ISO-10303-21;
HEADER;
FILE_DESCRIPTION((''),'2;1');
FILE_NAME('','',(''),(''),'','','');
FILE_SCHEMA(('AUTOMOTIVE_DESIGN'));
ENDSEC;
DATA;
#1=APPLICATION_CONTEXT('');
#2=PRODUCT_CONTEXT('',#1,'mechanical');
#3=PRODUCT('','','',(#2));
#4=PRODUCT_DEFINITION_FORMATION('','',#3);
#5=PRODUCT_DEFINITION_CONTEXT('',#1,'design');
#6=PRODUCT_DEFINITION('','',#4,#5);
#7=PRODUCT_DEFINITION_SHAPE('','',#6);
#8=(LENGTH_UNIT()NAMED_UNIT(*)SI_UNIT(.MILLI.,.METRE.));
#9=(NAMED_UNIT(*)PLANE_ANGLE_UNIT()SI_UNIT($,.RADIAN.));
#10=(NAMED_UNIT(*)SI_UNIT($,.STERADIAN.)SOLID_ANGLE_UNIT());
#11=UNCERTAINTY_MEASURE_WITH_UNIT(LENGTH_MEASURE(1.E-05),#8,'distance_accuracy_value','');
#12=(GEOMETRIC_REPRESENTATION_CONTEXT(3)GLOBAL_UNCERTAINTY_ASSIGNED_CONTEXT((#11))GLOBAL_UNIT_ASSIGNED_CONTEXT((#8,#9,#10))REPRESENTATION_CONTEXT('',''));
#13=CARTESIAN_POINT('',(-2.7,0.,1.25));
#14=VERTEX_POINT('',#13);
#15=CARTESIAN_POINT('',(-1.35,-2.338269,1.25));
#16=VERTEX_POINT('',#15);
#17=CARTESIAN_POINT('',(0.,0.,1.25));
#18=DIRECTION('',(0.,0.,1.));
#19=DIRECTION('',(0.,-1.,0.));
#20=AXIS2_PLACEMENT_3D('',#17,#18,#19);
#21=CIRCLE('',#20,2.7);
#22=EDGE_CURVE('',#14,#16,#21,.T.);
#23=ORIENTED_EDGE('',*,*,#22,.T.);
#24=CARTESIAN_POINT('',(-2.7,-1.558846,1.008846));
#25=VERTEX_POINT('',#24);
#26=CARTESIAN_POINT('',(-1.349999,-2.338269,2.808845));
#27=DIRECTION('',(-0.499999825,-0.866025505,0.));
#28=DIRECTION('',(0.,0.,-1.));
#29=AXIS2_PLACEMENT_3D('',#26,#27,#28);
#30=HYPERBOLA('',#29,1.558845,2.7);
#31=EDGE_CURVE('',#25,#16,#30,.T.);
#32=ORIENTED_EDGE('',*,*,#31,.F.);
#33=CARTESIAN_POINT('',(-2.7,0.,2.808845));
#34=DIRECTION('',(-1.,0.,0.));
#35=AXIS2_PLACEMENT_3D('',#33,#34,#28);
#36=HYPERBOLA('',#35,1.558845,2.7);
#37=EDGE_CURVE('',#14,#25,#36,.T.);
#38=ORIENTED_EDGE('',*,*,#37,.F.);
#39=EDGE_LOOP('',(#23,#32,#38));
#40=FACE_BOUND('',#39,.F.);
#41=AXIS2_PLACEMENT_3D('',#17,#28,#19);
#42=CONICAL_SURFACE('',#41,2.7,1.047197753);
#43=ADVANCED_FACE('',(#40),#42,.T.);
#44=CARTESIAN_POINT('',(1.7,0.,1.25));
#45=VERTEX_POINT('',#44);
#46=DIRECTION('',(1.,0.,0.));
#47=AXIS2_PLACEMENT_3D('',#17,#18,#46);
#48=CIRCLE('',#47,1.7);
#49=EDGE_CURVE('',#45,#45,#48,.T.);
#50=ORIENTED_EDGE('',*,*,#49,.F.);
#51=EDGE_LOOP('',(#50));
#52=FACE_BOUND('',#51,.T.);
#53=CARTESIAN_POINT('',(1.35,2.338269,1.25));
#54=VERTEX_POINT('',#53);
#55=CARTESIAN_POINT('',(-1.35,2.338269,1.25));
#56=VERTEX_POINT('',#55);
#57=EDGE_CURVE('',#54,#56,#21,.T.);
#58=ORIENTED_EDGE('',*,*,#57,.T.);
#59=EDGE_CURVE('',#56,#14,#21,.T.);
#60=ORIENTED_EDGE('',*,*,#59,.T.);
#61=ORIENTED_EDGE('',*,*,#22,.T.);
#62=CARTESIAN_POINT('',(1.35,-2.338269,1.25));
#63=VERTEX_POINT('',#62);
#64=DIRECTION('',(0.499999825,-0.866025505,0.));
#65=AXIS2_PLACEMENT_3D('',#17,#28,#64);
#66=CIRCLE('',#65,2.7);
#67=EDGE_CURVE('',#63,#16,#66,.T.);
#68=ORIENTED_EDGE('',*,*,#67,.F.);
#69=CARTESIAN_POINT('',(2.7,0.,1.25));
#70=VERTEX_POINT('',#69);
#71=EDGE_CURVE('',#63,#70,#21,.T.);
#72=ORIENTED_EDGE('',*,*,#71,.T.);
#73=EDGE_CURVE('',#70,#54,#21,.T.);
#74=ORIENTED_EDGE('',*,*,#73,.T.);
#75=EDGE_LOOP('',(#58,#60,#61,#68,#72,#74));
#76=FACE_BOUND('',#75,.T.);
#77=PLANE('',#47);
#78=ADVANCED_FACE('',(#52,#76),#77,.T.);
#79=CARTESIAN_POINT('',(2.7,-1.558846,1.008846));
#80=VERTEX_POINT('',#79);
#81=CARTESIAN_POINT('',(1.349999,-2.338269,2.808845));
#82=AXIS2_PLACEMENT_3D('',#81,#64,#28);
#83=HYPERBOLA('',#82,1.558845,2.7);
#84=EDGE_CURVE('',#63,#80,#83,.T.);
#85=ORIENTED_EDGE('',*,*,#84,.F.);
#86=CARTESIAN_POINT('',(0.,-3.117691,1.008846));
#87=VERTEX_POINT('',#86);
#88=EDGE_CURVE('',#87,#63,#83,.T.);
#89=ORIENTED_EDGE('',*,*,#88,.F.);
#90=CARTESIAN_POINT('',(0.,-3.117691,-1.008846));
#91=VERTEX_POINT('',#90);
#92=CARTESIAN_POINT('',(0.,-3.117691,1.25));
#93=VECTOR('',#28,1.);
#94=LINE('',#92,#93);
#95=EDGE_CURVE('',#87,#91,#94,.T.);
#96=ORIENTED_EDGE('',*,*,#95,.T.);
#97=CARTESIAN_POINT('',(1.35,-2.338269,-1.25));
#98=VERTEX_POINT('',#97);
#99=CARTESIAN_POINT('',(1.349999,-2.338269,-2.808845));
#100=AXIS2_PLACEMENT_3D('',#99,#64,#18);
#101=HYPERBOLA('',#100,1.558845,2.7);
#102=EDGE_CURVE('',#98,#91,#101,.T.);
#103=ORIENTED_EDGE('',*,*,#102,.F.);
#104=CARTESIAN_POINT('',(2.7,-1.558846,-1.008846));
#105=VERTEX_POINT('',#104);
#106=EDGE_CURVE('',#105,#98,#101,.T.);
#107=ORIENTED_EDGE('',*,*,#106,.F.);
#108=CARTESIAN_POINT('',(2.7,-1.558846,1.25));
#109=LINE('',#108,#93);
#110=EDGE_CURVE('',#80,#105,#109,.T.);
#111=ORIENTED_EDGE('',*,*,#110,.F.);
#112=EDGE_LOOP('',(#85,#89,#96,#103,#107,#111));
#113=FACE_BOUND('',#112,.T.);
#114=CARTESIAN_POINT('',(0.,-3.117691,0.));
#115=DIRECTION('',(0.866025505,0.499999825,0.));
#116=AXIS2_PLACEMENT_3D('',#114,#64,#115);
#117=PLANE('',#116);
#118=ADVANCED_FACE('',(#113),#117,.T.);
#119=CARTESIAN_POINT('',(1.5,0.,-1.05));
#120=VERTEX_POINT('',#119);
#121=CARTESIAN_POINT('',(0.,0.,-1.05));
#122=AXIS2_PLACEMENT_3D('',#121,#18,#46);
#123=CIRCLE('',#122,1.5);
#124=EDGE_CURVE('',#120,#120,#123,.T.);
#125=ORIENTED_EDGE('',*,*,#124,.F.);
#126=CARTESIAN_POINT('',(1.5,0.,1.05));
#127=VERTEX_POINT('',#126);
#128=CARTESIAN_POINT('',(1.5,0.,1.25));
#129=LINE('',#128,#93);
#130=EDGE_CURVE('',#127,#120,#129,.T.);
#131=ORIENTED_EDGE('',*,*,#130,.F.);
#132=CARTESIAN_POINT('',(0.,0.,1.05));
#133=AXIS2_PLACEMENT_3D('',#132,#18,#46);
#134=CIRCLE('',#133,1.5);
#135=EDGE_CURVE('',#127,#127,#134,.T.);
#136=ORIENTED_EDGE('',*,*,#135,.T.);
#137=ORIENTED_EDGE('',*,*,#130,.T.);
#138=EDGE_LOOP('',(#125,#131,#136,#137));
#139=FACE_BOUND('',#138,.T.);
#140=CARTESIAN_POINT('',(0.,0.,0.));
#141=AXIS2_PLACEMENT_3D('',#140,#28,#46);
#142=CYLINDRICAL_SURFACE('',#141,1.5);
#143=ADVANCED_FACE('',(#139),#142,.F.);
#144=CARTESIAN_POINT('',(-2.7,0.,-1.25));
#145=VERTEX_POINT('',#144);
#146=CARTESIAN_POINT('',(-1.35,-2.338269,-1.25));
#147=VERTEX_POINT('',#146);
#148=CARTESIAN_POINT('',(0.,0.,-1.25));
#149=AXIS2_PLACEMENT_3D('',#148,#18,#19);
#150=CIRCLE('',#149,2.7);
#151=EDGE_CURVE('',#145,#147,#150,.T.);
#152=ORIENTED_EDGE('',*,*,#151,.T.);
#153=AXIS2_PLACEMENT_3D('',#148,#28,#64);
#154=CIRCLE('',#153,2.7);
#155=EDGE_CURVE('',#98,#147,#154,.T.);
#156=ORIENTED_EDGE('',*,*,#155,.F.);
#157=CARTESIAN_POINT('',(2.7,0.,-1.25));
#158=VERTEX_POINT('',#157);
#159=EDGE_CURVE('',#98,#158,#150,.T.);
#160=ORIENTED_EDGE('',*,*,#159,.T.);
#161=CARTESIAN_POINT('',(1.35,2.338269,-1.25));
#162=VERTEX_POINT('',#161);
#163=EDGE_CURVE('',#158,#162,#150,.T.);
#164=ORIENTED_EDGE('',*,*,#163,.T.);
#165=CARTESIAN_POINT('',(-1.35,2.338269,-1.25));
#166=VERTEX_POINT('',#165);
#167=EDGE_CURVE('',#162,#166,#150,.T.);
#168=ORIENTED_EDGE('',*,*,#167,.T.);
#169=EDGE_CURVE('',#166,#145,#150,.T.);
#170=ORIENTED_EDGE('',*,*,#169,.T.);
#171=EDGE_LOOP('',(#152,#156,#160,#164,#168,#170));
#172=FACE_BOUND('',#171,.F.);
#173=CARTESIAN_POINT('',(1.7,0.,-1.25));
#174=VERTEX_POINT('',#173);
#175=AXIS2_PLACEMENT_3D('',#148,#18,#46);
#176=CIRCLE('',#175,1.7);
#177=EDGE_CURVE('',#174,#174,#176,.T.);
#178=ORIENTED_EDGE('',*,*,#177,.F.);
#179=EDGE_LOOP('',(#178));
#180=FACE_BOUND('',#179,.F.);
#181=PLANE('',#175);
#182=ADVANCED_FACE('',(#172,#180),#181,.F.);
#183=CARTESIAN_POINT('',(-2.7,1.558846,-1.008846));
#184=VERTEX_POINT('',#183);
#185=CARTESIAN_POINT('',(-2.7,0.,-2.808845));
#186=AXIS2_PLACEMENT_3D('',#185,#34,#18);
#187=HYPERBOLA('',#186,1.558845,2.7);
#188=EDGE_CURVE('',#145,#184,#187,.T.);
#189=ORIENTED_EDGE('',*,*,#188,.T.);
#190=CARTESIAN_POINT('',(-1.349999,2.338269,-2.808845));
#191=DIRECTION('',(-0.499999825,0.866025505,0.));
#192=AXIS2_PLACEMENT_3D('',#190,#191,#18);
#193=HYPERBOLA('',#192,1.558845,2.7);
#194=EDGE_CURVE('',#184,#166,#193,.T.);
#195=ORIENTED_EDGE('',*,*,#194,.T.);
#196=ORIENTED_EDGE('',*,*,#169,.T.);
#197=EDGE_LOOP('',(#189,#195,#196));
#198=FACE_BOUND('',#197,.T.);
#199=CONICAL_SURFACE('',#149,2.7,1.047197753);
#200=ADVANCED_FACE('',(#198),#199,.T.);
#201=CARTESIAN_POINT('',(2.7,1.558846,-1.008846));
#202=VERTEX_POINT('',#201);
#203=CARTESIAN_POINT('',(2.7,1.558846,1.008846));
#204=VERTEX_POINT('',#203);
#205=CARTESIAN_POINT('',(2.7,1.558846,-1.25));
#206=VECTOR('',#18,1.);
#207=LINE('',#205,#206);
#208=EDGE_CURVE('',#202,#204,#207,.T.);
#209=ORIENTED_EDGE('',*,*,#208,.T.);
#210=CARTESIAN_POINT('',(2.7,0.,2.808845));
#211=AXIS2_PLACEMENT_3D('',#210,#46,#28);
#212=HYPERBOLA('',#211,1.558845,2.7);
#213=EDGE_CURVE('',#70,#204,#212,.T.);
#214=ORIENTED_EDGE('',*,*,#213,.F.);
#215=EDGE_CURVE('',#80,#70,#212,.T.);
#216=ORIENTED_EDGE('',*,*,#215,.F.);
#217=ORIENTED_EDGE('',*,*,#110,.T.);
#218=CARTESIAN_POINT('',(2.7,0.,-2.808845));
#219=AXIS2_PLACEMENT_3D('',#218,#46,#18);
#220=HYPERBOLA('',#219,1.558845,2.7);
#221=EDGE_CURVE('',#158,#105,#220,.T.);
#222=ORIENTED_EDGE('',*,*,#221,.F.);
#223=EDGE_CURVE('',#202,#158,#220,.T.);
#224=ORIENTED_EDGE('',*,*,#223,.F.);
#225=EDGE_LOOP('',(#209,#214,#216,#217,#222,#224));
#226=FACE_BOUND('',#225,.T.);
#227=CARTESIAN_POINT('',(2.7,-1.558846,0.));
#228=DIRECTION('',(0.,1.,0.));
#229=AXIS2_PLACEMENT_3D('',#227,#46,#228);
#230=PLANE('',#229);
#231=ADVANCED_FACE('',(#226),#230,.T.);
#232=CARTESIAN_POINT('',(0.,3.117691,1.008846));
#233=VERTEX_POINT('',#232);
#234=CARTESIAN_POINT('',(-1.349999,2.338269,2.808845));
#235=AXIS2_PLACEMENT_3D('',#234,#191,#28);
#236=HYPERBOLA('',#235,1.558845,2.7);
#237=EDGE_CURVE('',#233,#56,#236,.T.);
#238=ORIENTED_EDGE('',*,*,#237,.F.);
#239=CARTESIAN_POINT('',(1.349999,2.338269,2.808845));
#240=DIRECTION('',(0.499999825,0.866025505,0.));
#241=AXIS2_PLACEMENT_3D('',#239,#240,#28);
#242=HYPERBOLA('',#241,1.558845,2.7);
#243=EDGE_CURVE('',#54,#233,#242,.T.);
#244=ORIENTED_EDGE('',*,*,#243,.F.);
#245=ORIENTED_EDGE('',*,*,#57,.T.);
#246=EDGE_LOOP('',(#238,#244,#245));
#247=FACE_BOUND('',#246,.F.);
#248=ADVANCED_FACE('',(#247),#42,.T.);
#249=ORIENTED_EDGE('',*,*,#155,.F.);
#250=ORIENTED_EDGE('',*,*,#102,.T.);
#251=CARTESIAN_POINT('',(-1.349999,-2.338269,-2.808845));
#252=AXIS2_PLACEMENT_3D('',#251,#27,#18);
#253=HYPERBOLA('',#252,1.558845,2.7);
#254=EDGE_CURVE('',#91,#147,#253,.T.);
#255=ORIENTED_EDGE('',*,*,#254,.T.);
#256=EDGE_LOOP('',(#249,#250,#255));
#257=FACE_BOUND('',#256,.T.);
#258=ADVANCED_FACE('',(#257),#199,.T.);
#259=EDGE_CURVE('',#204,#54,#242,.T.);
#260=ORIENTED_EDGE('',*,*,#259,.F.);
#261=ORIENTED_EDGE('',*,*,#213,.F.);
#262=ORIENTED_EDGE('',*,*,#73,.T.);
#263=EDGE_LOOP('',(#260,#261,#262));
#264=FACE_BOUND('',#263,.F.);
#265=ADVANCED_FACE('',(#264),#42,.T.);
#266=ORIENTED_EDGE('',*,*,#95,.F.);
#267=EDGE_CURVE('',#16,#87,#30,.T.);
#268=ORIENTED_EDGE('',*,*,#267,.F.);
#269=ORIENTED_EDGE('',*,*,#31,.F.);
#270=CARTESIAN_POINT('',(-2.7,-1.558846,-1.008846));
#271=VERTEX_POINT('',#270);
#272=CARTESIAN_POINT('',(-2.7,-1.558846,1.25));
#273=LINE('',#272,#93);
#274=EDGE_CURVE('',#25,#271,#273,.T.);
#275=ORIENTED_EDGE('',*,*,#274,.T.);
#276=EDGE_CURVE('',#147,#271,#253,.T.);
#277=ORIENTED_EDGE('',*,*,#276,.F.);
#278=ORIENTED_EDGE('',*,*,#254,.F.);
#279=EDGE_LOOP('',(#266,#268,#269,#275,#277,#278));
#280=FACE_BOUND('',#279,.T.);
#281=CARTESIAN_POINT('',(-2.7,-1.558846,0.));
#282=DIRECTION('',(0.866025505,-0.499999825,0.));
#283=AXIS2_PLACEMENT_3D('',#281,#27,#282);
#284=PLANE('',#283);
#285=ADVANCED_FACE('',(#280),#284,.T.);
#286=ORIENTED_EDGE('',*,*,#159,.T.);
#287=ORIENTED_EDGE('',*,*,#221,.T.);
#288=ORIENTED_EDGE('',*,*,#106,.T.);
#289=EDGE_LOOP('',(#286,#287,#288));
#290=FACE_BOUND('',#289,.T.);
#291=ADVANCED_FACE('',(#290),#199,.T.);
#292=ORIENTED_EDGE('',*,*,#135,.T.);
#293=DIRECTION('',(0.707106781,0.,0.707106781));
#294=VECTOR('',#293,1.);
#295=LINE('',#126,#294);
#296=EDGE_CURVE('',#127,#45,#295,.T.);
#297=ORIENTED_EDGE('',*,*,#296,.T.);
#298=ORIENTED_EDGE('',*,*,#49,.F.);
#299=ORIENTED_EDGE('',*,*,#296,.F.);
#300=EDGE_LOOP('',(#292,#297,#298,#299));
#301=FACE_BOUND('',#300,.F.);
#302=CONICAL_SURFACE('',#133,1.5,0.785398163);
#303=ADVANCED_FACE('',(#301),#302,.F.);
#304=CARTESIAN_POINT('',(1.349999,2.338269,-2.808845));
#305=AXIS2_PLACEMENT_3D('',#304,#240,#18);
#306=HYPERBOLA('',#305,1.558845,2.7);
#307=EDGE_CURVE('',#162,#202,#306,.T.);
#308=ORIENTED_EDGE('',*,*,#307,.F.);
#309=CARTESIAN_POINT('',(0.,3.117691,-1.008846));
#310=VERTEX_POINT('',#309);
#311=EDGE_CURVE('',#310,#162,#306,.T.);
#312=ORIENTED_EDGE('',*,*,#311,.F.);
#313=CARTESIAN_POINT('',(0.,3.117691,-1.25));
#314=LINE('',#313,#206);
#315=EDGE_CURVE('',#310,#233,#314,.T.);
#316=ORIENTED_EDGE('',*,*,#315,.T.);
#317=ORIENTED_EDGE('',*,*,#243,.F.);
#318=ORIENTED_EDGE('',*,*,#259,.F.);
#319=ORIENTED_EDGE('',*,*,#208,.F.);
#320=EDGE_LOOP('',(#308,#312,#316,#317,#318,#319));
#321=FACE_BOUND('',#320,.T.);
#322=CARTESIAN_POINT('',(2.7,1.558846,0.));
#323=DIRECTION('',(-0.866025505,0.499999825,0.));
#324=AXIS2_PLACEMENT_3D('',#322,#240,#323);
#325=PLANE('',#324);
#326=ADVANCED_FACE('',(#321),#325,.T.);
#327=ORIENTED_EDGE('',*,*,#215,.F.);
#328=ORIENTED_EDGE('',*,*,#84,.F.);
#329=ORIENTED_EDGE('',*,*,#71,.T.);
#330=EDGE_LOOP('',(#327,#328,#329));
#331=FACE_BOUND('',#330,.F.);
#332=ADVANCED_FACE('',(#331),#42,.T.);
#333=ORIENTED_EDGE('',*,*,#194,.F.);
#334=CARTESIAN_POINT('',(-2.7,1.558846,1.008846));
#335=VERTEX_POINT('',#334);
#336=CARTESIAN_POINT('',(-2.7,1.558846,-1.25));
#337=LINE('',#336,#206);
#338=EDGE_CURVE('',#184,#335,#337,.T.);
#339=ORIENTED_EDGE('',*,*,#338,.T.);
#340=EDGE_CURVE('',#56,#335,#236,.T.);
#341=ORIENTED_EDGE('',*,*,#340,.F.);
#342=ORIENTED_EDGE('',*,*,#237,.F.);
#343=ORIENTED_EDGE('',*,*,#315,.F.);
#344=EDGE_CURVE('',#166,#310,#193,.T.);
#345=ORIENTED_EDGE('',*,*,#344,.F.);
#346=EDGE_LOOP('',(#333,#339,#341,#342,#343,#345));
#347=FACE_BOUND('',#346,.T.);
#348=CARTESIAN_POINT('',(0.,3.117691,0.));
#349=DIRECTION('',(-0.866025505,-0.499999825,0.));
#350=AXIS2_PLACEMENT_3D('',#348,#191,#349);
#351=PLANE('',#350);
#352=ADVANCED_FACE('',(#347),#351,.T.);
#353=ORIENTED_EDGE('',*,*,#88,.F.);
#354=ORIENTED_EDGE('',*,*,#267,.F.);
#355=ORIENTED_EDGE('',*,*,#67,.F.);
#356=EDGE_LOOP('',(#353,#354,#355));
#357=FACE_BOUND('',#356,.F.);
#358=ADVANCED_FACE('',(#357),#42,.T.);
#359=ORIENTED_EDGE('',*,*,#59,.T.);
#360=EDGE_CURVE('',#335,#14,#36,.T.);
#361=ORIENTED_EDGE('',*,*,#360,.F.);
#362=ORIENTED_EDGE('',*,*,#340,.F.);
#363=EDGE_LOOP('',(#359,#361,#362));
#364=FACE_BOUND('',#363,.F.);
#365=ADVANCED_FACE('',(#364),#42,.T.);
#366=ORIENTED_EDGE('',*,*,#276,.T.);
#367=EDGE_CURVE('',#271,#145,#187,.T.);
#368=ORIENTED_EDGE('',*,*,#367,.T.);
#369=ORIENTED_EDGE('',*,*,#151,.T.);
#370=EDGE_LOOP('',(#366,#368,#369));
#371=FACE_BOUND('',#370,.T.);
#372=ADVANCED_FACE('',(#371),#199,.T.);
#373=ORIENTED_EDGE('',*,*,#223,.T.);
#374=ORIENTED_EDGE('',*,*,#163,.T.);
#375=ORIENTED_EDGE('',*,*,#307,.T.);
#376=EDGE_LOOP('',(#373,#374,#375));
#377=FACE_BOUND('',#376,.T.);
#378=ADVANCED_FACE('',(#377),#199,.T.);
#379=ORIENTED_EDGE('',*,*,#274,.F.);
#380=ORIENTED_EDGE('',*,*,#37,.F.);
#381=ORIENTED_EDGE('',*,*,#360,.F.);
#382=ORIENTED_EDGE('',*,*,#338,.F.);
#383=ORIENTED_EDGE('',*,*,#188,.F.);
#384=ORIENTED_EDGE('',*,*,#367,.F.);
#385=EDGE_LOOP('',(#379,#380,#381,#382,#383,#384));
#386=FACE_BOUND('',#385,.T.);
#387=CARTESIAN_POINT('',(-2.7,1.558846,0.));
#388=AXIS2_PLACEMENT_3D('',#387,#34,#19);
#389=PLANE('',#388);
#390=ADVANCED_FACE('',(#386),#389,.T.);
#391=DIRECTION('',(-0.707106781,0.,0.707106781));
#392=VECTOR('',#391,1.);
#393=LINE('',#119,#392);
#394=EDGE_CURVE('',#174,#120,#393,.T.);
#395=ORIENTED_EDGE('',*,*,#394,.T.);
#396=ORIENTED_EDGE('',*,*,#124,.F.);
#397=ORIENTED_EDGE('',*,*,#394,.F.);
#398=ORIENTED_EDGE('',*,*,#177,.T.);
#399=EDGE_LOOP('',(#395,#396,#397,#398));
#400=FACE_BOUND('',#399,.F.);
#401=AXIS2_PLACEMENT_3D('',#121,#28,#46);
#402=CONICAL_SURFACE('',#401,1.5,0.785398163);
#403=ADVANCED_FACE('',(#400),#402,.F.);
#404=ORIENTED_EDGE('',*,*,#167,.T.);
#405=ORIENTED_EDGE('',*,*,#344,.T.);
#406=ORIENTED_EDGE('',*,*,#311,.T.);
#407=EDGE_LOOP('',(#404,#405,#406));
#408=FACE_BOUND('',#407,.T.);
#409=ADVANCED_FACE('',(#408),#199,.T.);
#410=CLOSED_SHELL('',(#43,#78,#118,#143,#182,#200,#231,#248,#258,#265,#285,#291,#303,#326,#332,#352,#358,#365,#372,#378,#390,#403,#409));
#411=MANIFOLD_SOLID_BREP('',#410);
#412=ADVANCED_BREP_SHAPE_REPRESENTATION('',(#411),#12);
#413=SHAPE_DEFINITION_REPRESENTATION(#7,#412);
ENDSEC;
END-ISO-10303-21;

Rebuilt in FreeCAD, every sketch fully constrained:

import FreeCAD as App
import Part
import Sketcher
Q = App.Units.Quantity


def edges_at(feature, points):
    """Names of the edges that pass closest to the given points."""
    edges = feature.Shape.Edges
    near = lambda p: min(range(len(edges)), key=lambda i: edges[i].distToShape(Part.Vertex(*p))[0])
    return sorted({f"Edge{near(p) + 1}" for p in points})

doc = App.newDocument("Part")
body = doc.addObject("PartDesign::Body", "Body")

# Sketch on XY plane
sketch1 = body.newObject("Sketcher::SketchObject", "Sketch")
sketch1.AttachmentSupport = (doc.getObject("XY_Plane"), [""])
sketch1.MapMode = "FlatFace"
sketch1.addGeometry(Part.LineSegment(App.Vector(2.7, -1.6, 0), App.Vector(2.7, 1.6, 0)), False)
sketch1.addGeometry(Part.LineSegment(App.Vector(2.7, 1.6, 0), App.Vector(0, 3.1, 0)), False)
sketch1.addGeometry(Part.LineSegment(App.Vector(0, 3.1, 0), App.Vector(-2.7, 1.6, 0)), False)
sketch1.addGeometry(Part.LineSegment(App.Vector(-2.7, 1.6, 0), App.Vector(-2.7, -1.6, 0)), False)
sketch1.addGeometry(Part.LineSegment(App.Vector(-2.7, -1.6, 0), App.Vector(0, -3.1, 0)), False)
sketch1.addGeometry(Part.LineSegment(App.Vector(0, -3.1, 0), App.Vector(2.7, -1.6, 0)), False)
sketch1.addGeometry(Part.Circle(App.Vector(0, 0, 0), App.Vector(0, 0, 1), 1.5), False)
sketch1.addConstraint(Sketcher.Constraint("Coincident", 0, 2, 1, 1))
sketch1.addConstraint(Sketcher.Constraint("Coincident", 1, 2, 2, 1))
sketch1.addConstraint(Sketcher.Constraint("Coincident", 2, 2, 3, 1))
sketch1.addConstraint(Sketcher.Constraint("Coincident", 3, 2, 4, 1))
sketch1.addConstraint(Sketcher.Constraint("Coincident", 4, 2, 5, 1))
sketch1.addConstraint(Sketcher.Constraint("Coincident", 5, 2, 0, 1))
sketch1.addConstraint(Sketcher.Constraint("Vertical", 0))
sketch1.addConstraint(Sketcher.Constraint("Vertical", 3))
sketch1.addConstraint(Sketcher.Constraint("Coincident", 6, 3, -1, 1))
sketch1.addConstraint(Sketcher.Constraint("Symmetric", 0, 2, 3, 2, -1, 1))
sketch1.addConstraint(Sketcher.Constraint("Symmetric", 1, 2, 4, 2, -1, 1))
sketch1.addConstraint(Sketcher.Constraint("PointOnObject", 1, 2, -2))
sketch1.addConstraint(Sketcher.Constraint("Parallel", 2, 5))
sketch1.addConstraint(Sketcher.Constraint("Horizontal", 0, 2, 2, 2))
sketch1.addConstraint(Sketcher.Constraint("Diameter", 6, 3.0))
sketch1.addConstraint(Sketcher.Constraint("Angle", 1, Q("150.000012 deg")))
sketch1.addConstraint(Sketcher.Constraint("DistanceX", -1, 1, 0, 2, 2.7))
sketch1.addConstraint(Sketcher.Constraint("DistanceY", 0, 1, 0, 2, 3.117692))
pad1 = body.newObject("PartDesign::Pad", "Pad")
pad1.Profile = sketch1
pad1.Length = 2.5
pad1.Midplane = True

# Sketch on YZ plane
sketch2 = body.newObject("Sketcher::SketchObject", "Sketch001")
sketch2.AttachmentSupport = (doc.getObject("YZ_Plane"), [""])
sketch2.MapMode = "FlatFace"
sketch2.addGeometry(Part.LineSegment(App.Vector(-3.5, 0.79, 0), App.Vector(-2.7, 1.25, 0)), False)
sketch2.addGeometry(Part.LineSegment(App.Vector(-2.7, 1.25, 0), App.Vector(-3.5, 1.25, 0)), False)
sketch2.addGeometry(Part.LineSegment(App.Vector(-3.5, 1.25, 0), App.Vector(-3.5, 0.79, 0)), False)
sketch2.addGeometry(Part.LineSegment(App.Vector(-2.7, -1.25, 0), App.Vector(-3.5, -0.79, 0)), False)
sketch2.addGeometry(Part.LineSegment(App.Vector(-3.5, -0.79, 0), App.Vector(-3.5, -1.25, 0)), False)
sketch2.addGeometry(Part.LineSegment(App.Vector(-3.5, -1.25, 0), App.Vector(-2.7, -1.25, 0)), False)
sketch2.addConstraint(Sketcher.Constraint("Coincident", 0, 2, 1, 1))
sketch2.addConstraint(Sketcher.Constraint("Coincident", 1, 2, 2, 1))
sketch2.addConstraint(Sketcher.Constraint("Coincident", 2, 2, 0, 1))
sketch2.addConstraint(Sketcher.Constraint("Coincident", 3, 2, 4, 1))
sketch2.addConstraint(Sketcher.Constraint("Coincident", 4, 2, 5, 1))
sketch2.addConstraint(Sketcher.Constraint("Coincident", 5, 2, 3, 1))
sketch2.addConstraint(Sketcher.Constraint("Horizontal", 1))
sketch2.addConstraint(Sketcher.Constraint("Vertical", 2))
sketch2.addConstraint(Sketcher.Constraint("Vertical", 4))
sketch2.addConstraint(Sketcher.Constraint("Horizontal", 5))
sketch2.addConstraint(Sketcher.Constraint("Symmetric", 2, 2, 3, 2, -1))
sketch2.addConstraint(Sketcher.Constraint("Symmetric", 0, 2, 5, 2, -1))
sketch2.addConstraint(Sketcher.Constraint("Angle", 0, Q("29.999988 deg")))
sketch2.addConstraint(Sketcher.Constraint("DistanceX", 1, 2, 1, 1, 0.8))
sketch2.addConstraint(Sketcher.Constraint("DistanceX", 0, 2, -1, 1, 2.7))
sketch2.addConstraint(Sketcher.Constraint("DistanceY", 4, 2, 1, 2, 2.5))
groove = body.newObject("PartDesign::Groove", "Groove")
groove.Profile = sketch2
groove.ReferenceAxis = (sketch2, ["V_Axis"])
groove.Angle = 360
doc.recompute()

chamfer = body.newObject("PartDesign::Chamfer", "Chamfer")
chamfer.Base = (groove, edges_at(groove, [(-1.5, 0, 1.25), (-1.5, 0, -1.25)]))
chamfer.Size = 0.2

doc.recompute()
